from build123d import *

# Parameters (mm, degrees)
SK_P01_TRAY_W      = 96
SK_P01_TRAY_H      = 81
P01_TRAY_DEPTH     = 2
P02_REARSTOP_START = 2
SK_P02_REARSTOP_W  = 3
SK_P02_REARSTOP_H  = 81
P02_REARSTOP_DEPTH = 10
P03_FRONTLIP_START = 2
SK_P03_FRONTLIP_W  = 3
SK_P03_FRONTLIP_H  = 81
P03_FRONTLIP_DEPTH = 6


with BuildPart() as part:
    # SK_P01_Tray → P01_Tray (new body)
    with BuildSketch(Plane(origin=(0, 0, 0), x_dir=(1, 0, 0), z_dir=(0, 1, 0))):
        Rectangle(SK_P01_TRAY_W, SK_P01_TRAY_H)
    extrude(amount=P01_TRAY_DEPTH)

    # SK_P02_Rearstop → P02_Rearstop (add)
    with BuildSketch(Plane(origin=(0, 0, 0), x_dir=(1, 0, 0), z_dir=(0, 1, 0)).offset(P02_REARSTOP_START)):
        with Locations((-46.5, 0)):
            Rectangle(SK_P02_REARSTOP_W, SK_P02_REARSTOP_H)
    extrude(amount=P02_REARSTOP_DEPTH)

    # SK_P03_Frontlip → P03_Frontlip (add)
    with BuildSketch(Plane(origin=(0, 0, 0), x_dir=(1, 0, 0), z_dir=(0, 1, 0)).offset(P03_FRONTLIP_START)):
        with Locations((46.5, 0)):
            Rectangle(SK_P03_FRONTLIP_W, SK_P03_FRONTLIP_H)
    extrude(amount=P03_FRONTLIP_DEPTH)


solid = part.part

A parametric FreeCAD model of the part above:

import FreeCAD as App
import Part
import Sketcher

V = App.Vector


def add_polygon(sketch, points):
    """Adds a closed chain of lines whose ends are joined by coincident constraints."""
    first, n = sketch.GeometryCount, len(points)
    for a, b in zip(points, points[1:] + points[:1]):
        sketch.addGeometry(Part.LineSegment(App.Vector(*a, 0), App.Vector(*b, 0)), False)
    for i in range(n):
        sketch.addConstraint(Sketcher.Constraint("Coincident", first + i, 2, first + (i + 1) % n, 1))

doc = App.newDocument("Part")
body = doc.addObject("PartDesign::Body", "Body")

sketch1 = body.newObject("Sketcher::SketchObject", "Sketch")
sketch1.AttachmentSupport = (doc.getObject("XZ_Plane"), [""])
sketch1.MapMode = "FlatFace"
add_polygon(sketch1, [(-48, -40), (-48, 40), (48, 40), (48, -40)])
sketch1.addConstraint(Sketcher.Constraint("Vertical", 0))
sketch1.addConstraint(Sketcher.Constraint("Horizontal", 1))
sketch1.addConstraint(Sketcher.Constraint("Vertical", 2))
sketch1.addConstraint(Sketcher.Constraint("Horizontal", 3))
sketch1.addConstraint(Sketcher.Constraint("Symmetric", 0, 2, 2, 2, -1, 1))
sketch1.addConstraint(Sketcher.Constraint("DistanceX", 1, 1, 1, 2, 96.0))
sketch1.addConstraint(Sketcher.Constraint("DistanceY", 0, 1, 0, 2, 81.0))
pad1 = body.newObject("PartDesign::Pad", "Pad")
pad1.Profile = sketch1
pad1.Length = 2
pad1.Reversed = True

sketch2 = body.newObject("Sketcher::SketchObject", "Sketch001")
sketch2.AttachmentSupport = (doc.getObject("XZ_Plane"), [""])
sketch2.MapMode = "FlatFace"
sketch2.AttachmentOffset = App.Placement(V(0, 0, -2), App.Rotation())
add_polygon(sketch2, [(-48, -40.5), (-48, 40.5), (-45, 40.5), (-45, -40.5)])
sketch2.addConstraint(Sketcher.Constraint("Vertical", 0))
sketch2.addConstraint(Sketcher.Constraint("Horizontal", 1))
sketch2.addConstraint(Sketcher.Constraint("Vertical", 2))
sketch2.addConstraint(Sketcher.Constraint("Horizontal", 3))
sketch2.addConstraint(Sketcher.Constraint("DistanceX", 1, 1, 1, 2, 3.0))
sketch2.addConstraint(Sketcher.Constraint("DistanceY", 0, 1, 0, 2, 81.0))
sketch2.addConstraint(Sketcher.Constraint("DistanceX", 0, 2, -1, 1, 48.0))
sketch2.addConstraint(Sketcher.Constraint("DistanceY", -1, 1, 0, 2, 40.5))
pad2 = body.newObject("PartDesign::Pad", "Pad001")
pad2.Profile = sketch2
pad2.Length = 10
pad2.Reversed = True

sketch3 = body.newObject("Sketcher::SketchObject", "Sketch002")
sketch3.AttachmentSupport = (doc.getObject("XZ_Plane"), [""])
sketch3.MapMode = "FlatFace"
sketch3.AttachmentOffset = App.Placement(V(0, 0, -2), App.Rotation())
add_polygon(sketch3, [(45, -40.5), (45, 40.5), (48, 40.5), (48, -40.5)])
sketch3.addConstraint(Sketcher.Constraint("Vertical", 0))
sketch3.addConstraint(Sketcher.Constraint("Horizontal", 1))
sketch3.addConstraint(Sketcher.Constraint("Vertical", 2))
sketch3.addConstraint(Sketcher.Constraint("Horizontal", 3))
sketch3.addConstraint(Sketcher.Constraint("DistanceX", 1, 1, 1, 2, 3.0))
sketch3.addConstraint(Sketcher.Constraint("DistanceY", 0, 1, 0, 2, 81.0))
sketch3.addConstraint(Sketcher.Constraint("DistanceX", -1, 1, 0, 2, 45.0))
sketch3.addConstraint(Sketcher.Constraint("DistanceY", -1, 1, 0, 2, 40.5))
pad3 = body.newObject("PartDesign::Pad", "Pad002")
pad3.Profile = sketch3
pad3.Length = 6
pad3.Reversed = True

doc.recompute()
